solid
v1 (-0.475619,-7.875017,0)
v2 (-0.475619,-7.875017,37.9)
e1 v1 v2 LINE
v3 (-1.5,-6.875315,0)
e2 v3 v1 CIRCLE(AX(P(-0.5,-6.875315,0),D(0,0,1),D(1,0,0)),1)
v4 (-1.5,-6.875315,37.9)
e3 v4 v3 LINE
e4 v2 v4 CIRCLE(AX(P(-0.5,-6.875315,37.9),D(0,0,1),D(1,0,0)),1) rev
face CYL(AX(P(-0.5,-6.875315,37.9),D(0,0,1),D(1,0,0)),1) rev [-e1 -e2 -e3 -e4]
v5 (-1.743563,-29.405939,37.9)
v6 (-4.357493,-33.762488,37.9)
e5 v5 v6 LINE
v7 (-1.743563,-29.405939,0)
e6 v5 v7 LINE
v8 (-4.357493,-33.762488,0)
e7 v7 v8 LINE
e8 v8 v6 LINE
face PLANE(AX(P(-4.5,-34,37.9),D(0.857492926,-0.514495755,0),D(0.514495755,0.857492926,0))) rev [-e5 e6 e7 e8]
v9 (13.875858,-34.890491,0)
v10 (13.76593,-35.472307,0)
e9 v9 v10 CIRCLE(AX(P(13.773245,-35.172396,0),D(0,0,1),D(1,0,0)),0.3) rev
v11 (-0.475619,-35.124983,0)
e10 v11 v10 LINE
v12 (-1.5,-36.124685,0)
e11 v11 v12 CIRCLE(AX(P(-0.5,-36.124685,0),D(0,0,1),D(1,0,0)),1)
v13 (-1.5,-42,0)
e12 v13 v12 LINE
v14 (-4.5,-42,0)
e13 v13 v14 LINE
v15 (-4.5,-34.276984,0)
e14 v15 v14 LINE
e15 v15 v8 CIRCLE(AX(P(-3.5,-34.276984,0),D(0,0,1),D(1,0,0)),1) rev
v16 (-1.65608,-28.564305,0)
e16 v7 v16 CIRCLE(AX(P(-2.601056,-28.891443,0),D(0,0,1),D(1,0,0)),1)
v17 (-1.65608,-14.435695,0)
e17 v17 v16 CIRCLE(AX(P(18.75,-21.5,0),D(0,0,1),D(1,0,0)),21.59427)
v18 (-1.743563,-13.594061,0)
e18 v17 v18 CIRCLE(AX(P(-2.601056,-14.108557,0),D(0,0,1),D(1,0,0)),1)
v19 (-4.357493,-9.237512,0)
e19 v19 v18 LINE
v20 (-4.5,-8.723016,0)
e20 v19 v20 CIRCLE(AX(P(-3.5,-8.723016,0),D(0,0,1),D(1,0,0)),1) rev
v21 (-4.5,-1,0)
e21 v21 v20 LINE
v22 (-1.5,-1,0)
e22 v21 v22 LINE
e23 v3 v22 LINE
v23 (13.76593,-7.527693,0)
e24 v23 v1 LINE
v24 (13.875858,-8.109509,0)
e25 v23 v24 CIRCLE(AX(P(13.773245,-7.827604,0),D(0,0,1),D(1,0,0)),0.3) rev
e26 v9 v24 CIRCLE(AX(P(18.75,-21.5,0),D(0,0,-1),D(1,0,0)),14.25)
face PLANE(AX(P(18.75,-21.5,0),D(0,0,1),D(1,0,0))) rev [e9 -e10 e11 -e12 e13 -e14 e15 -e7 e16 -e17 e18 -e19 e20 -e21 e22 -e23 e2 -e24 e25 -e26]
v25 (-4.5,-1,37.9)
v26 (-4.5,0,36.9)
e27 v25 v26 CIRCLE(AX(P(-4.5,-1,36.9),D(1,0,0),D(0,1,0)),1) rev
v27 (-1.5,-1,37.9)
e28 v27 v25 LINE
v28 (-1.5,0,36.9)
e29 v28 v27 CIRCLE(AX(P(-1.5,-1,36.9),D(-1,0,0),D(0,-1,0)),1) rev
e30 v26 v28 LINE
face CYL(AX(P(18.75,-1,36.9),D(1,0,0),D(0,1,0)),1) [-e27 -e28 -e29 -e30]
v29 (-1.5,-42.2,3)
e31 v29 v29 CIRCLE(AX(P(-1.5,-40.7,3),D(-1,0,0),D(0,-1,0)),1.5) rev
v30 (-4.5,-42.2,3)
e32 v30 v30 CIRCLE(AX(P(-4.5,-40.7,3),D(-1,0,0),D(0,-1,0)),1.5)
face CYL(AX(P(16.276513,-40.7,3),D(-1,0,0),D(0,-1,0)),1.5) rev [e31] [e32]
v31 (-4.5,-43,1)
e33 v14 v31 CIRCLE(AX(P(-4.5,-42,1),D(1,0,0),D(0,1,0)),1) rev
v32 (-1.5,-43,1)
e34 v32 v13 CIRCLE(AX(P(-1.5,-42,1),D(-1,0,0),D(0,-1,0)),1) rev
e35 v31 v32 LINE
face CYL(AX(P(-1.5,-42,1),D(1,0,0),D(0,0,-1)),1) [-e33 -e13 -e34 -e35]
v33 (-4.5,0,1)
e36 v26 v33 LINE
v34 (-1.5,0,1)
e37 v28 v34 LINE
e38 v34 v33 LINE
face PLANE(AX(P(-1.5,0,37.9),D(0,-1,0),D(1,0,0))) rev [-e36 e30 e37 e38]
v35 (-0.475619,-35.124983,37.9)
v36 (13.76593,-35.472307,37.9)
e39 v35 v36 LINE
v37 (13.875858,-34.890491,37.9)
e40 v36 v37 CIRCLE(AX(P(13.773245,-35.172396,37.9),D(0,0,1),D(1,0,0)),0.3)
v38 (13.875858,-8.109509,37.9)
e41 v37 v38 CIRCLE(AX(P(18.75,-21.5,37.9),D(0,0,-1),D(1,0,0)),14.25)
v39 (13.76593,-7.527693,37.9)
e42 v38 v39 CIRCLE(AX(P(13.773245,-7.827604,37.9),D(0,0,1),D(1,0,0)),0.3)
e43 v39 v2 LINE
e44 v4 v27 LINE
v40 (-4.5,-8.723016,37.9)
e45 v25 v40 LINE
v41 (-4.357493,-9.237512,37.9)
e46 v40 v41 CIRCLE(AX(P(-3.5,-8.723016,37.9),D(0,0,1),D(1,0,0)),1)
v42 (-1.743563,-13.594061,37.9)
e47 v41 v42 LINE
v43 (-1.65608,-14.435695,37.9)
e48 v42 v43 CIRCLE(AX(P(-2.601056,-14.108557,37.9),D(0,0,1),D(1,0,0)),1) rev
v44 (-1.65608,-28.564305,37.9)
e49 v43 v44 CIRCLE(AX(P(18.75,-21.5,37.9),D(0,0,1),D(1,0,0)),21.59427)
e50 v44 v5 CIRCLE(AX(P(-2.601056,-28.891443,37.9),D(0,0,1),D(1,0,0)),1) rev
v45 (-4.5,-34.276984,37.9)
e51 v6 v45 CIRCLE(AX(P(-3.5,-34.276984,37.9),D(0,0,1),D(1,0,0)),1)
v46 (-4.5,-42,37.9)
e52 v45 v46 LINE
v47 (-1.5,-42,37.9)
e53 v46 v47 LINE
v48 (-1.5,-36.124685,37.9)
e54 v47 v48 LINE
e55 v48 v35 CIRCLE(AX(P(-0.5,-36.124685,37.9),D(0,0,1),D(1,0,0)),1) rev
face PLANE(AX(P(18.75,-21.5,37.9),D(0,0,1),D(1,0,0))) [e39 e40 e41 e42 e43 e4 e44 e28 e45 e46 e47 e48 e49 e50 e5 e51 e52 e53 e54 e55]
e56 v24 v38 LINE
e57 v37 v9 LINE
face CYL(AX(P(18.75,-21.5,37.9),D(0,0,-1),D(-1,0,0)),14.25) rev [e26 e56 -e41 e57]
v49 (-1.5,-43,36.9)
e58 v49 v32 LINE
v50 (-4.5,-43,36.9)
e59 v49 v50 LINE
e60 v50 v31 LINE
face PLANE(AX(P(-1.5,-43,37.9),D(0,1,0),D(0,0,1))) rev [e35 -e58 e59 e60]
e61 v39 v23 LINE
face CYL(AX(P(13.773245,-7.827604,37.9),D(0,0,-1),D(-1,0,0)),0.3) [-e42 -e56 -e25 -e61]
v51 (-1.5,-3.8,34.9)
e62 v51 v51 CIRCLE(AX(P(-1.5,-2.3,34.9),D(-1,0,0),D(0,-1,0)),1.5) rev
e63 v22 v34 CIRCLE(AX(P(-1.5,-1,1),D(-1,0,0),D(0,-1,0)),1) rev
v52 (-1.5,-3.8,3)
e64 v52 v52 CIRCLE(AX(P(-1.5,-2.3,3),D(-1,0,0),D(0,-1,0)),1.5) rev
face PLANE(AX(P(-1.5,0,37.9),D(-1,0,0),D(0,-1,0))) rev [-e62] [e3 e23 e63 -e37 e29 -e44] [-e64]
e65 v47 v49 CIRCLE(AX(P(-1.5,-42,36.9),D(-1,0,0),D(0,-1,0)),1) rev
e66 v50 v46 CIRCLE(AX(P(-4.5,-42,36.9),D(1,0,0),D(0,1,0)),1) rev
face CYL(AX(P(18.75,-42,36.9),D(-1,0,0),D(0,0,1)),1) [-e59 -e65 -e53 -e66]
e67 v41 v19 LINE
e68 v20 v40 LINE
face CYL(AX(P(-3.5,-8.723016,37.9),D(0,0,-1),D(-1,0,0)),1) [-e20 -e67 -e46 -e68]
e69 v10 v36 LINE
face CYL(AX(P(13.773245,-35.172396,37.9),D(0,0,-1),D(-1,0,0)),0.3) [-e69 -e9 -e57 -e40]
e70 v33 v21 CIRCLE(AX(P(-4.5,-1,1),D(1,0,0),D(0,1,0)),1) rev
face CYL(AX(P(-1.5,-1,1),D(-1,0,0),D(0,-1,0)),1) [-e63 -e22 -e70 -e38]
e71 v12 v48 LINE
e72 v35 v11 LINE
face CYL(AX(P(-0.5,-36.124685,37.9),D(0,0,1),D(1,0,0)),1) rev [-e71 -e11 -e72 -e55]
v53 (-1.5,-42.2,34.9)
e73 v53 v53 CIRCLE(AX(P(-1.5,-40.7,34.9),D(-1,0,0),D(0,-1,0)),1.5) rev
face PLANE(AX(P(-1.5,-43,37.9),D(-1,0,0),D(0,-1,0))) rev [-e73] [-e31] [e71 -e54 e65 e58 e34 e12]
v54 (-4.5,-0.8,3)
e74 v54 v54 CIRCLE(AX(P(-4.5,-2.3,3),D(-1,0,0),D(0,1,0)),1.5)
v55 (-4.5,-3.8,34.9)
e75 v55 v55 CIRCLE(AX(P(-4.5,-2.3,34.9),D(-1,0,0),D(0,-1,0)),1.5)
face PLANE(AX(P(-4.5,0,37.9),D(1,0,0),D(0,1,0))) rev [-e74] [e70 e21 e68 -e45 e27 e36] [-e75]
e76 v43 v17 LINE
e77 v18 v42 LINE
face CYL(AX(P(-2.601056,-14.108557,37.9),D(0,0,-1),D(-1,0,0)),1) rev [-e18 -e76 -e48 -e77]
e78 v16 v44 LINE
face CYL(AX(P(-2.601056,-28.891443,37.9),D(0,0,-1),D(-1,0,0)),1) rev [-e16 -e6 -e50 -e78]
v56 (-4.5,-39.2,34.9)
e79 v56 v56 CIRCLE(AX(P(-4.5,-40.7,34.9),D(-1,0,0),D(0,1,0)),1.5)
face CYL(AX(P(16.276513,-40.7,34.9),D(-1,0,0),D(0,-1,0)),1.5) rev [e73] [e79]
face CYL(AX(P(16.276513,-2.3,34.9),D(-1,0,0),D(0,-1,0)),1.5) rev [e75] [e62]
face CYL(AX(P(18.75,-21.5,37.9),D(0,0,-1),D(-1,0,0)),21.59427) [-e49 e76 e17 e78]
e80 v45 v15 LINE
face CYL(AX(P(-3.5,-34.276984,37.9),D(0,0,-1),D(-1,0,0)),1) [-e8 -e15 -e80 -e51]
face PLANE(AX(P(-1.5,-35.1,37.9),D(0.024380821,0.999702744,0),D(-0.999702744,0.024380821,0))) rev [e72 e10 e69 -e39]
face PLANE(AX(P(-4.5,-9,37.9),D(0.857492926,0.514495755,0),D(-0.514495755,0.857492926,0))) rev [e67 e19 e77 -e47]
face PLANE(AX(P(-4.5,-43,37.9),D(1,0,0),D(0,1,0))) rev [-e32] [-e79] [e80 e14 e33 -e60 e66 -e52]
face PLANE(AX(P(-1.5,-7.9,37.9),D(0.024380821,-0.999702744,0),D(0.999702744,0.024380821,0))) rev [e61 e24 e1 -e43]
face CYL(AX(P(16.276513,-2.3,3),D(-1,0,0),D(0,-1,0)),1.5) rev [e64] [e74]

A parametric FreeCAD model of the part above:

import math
import FreeCAD as App
import Part
import Sketcher

V = App.Vector
Q = App.Units.Quantity


def edges_at(feature, points):
    """Names of the edges that pass closest to the given points."""
    edges = feature.Shape.Edges
    near = lambda p: min(range(len(edges)), key=lambda i: edges[i].distToShape(Part.Vertex(*p))[0])
    return sorted({f"Edge{near(p) + 1}" for p in points})

doc = App.newDocument("Part")
params = doc.addObject("Spreadsheet::Sheet", "Params")
for row, (alias, value) in enumerate([
    ("sketch1_width", "3 mm"),
    ("sketch1_height", "9 mm"),
    ("sketch1_radius", "14.25 mm"),
    ("sketch1_height2", "7.9 mm"),
    ("pad1_length", "37.9 mm"),
    ("sketch2_diameter", "3 mm"),
    ("sketch3_diameter", "3 mm"),
    ("sketch4_diameter", "3 mm"),
    ("sketch5_diameter", "3 mm"),
    ("fillet_radius", "0.3 mm"),
    ("fillet2_radius", "1 mm"),
], start=1):
    params.set(f"A{row}", alias)
    params.set(f"B{row}", "=" + value)
    params.setAlias(f"B{row}", alias)

body = doc.addObject("PartDesign::Body", "Body")

# Sketch on XY plane
sketch1 = body.newObject("Sketcher::SketchObject", "Sketch")
sketch1.AttachmentSupport = (doc.getObject("XY_Plane"), [""])
sketch1.MapMode = "FlatFace"
sketch1.addGeometry(Part.LineSegment(V(-1.5, 0, 0), V(-4.5, 0, 0)), False)
sketch1.addGeometry(Part.LineSegment(V(-4.5, 0, 0), V(-4.5, -9, 0)), False)
sketch1.addGeometry(Part.LineSegment(V(-4.5, -9, 0), V(-1.5, -14, 0)), False)
sketch1.addGeometry(Part.ArcOfCircle(Part.Circle(V(18.8, -21.5, 0), V(0, 0, 1), 21.6), math.radians(160), math.radians(200)), False)
sketch1.addGeometry(Part.LineSegment(V(-1.5, -29, 0), V(-4.5, -34, 0)), False)
sketch1.addGeometry(Part.LineSegment(V(-4.5, -34, 0), V(-4.5, -43, 0)), False)
sketch1.addGeometry(Part.LineSegment(V(-4.5, -43, 0), V(-1.5, -43, 0)), False)
sketch1.addGeometry(Part.LineSegment(V(-1.5, -43, 0), V(-1.5, -35.1, 0)), False)
sketch1.addGeometry(Part.LineSegment(V(-1.5, -35.1, 0), V(16.3, -35.5, 0)), False)
sketch1.addGeometry(Part.ArcOfCircle(Part.Circle(V(18.8, -21.5, 0), V(0, 0, 1), 14.2), math.radians(100), math.radians(260)), False)
sketch1.addGeometry(Part.LineSegment(V(16.3, -7.5, 0), V(-1.5, -7.9, 0)), False)
sketch1.addGeometry(Part.LineSegment(V(-1.5, -7.9, 0), V(-1.5, 0, 0)), False)
sketch1.addConstraint(Sketcher.Constraint("Coincident", 0, 2, 1, 1))
sketch1.addConstraint(Sketcher.Constraint("Coincident", 1, 2, 2, 1))
sketch1.addConstraint(Sketcher.Constraint("Coincident", 2, 2, 3, 1))
sketch1.addConstraint(Sketcher.Constraint("Coincident", 3, 2, 4, 1))
sketch1.addConstraint(Sketcher.Constraint("Coincident", 4, 2, 5, 1))
sketch1.addConstraint(Sketcher.Constraint("Coincident", 5, 2, 6, 1))
sketch1.addConstraint(Sketcher.Constraint("Coincident", 6, 2, 7, 1))
sketch1.addConstraint(Sketcher.Constraint("Coincident", 7, 2, 8, 1))
sketch1.addConstraint(Sketcher.Constraint("Coincident", 8, 2, 9, 2))
sketch1.addConstraint(Sketcher.Constraint("Coincident", 9, 1, 10, 1))
sketch1.addConstraint(Sketcher.Constraint("Coincident", 10, 2, 11, 1))
sketch1.addConstraint(Sketcher.Constraint("Coincident", 11, 2, 0, 1))
sketch1.addConstraint(Sketcher.Constraint("Horizontal", 0))
sketch1.addConstraint(Sketcher.Constraint("Vertical", 1))
sketch1.addConstraint(Sketcher.Constraint("Vertical", 5))
sketch1.addConstraint(Sketcher.Constraint("Horizontal", 6))
sketch1.addConstraint(Sketcher.Constraint("Vertical", 7))
sketch1.addConstraint(Sketcher.Constraint("Vertical", 11))
sketch1.addConstraint(Sketcher.Constraint("Coincident", 9, 3, 3, 3))
sketch1.addConstraint(Sketcher.Constraint("PointOnObject", 0, 2, -1))
sketch1.addConstraint(Sketcher.Constraint("Vertical", 2, 2, 3, 2))
sketch1.addConstraint(Sketcher.Constraint("Vertical", 1, 2, 4, 2))
sketch1.addConstraint(Sketcher.Constraint("Vertical", 3, 2, 6, 2))
sketch1.addConstraint(Sketcher.Constraint("Vertical", 8, 2, 9, 1))
sketch1.addConstraint(Sketcher.Constraint("Vertical", 7, 2, 10, 2))
sketch1.addConstraint(Sketcher.Constraint("Equal", 1, 5))
sketch1.addConstraint(Sketcher.Constraint("Equal", 7, 11))
sketch1.addConstraint(Sketcher.Constraint("Equal", 2, 4))
sketch1.addConstraint(Sketcher.Constraint("DistanceX", 0, 2, 0, 1, Q("3 mm")))
sketch1.addConstraint(Sketcher.Constraint("DistanceY", 1, 2, 1, 1, Q("9 mm")))
sketch1.addConstraint(Sketcher.Constraint("Radius", 9, Q("14.25 mm")))
sketch1.addConstraint(Sketcher.Constraint("DistanceY", 7, 1, 7, 2, Q("7.9 mm")))
sketch1.addConstraint(Sketcher.Constraint("DistanceY", 2, 2, -1, 1, Q("14 mm")))
sketch1.addConstraint(Sketcher.Constraint("DistanceY", 3, 2, -1, 1, Q("29 mm")))
sketch1.addConstraint(Sketcher.Constraint("DistanceX", 0, 2, -1, 1, Q("4.5 mm")))
sketch1.addConstraint(Sketcher.Constraint("DistanceX", -1, 1, 3, 3, Q("18.75 mm")))
sketch1.addConstraint(Sketcher.Constraint("Distance", 8, Q("17.780799 mm")))
sketch1.setExpression("Constraints[28]", "Params.sketch1_width")
sketch1.setExpression("Constraints[29]", "Params.sketch1_height")
sketch1.setExpression("Constraints[30]", "Params.sketch1_radius")
sketch1.setExpression("Constraints[31]", "Params.sketch1_height2")
pad1 = body.newObject("PartDesign::Pad", "Pad")
pad1.Profile = sketch1
pad1.setExpression("Length", "Params.pad1_length")

# Sketch on YZ plane
sketch2 = body.newObject("Sketcher::SketchObject", "Sketch001")
sketch2.AttachmentSupport = (doc.getObject("YZ_Plane"), [""])
sketch2.MapMode = "FlatFace"
sketch2.AttachmentOffset = App.Placement(V(0, 0, -4.5), App.Rotation())
sketch2.addGeometry(Part.Circle(V(-40.7, 3, 0), V(0, 0, 1), 1.5), False)
sketch2.addConstraint(Sketcher.Constraint("Diameter", 0, Q("3 mm")))
sketch2.addConstraint(Sketcher.Constraint("DistanceY", -1, 1, 0, 3, Q("3 mm")))
sketch2.addConstraint(Sketcher.Constraint("DistanceX", 0, 3, -1, 1, Q("40.7 mm")))
sketch2.setExpression("Constraints[0]", "Params.sketch2_diameter")
pocket1 = body.newObject("PartDesign::Pocket", "Pocket")
pocket1.Profile = sketch2
pocket1.Type = "UpToFirst"
pocket1.Reversed = True

# Sketch on YZ plane
sketch3 = body.newObject("Sketcher::SketchObject", "Sketch002")
sketch3.AttachmentSupport = (doc.getObject("YZ_Plane"), [""])
sketch3.MapMode = "FlatFace"
sketch3.AttachmentOffset = App.Placement(V(0, 0, -4.5), App.Rotation())
sketch3.addGeometry(Part.Circle(V(-40.7, 34.9, 0), V(0, 0, 1), 1.5), False)
sketch3.addConstraint(Sketcher.Constraint("Diameter", 0, Q("3 mm")))
sketch3.addConstraint(Sketcher.Constraint("DistanceX", 0, 3, -1, 1, Q("40.7 mm")))
sketch3.addConstraint(Sketcher.Constraint("DistanceY", -1, 1, 0, 3, Q("34.9 mm")))
sketch3.setExpression("Constraints[0]", "Params.sketch3_diameter")
pocket2 = body.newObject("PartDesign::Pocket", "Pocket001")
pocket2.Profile = sketch3
pocket2.Type = "UpToFirst"
pocket2.Reversed = True

# Sketch on YZ plane
sketch4 = body.newObject("Sketcher::SketchObject", "Sketch003")
sketch4.AttachmentSupport = (doc.getObject("YZ_Plane"), [""])
sketch4.MapMode = "FlatFace"
sketch4.AttachmentOffset = App.Placement(V(0, 0, -4.5), App.Rotation())
sketch4.addGeometry(Part.Circle(V(-2.3, 3, 0), V(0, 0, 1), 1.5), False)
sketch4.addConstraint(Sketcher.Constraint("Diameter", 0, Q("3 mm")))
sketch4.addConstraint(Sketcher.Constraint("DistanceY", -1, 1, 0, 3, Q("3 mm")))
sketch4.addConstraint(Sketcher.Constraint("DistanceX", 0, 3, -1, 1, Q("2.3 mm")))
sketch4.setExpression("Constraints[0]", "Params.sketch4_diameter")
pocket3 = body.newObject("PartDesign::Pocket", "Pocket002")
pocket3.Profile = sketch4
pocket3.Type = "UpToFirst"
pocket3.Reversed = True

# Sketch on YZ plane
sketch5 = body.newObject("Sketcher::SketchObject", "Sketch004")
sketch5.AttachmentSupport = (doc.getObject("YZ_Plane"), [""])
sketch5.MapMode = "FlatFace"
sketch5.AttachmentOffset = App.Placement(V(0, 0, -4.5), App.Rotation())
sketch5.addGeometry(Part.Circle(V(-2.3, 34.9, 0), V(0, 0, 1), 1.5), False)
sketch5.addConstraint(Sketcher.Constraint("Diameter", 0, Q("3 mm")))
sketch5.addConstraint(Sketcher.Constraint("DistanceX", 0, 3, -1, 1, Q("2.3 mm")))
sketch5.addConstraint(Sketcher.Constraint("DistanceY", -1, 1, 0, 3, Q("34.9 mm")))
sketch5.setExpression("Constraints[0]", "Params.sketch5_diameter")
pocket4 = body.newObject("PartDesign::Pocket", "Pocket003")
pocket4.Profile = sketch5
pocket4.Type = "UpToFirst"
pocket4.Reversed = True
doc.recompute()

fillet = body.newObject("PartDesign::Fillet", "Fillet")
fillet.Base = (pocket4, edges_at(pocket4, [(16.276, -35.534, 18.95), (16.276, -7.466, 18.95)]))
fillet.setExpression("Radius", "Params.fillet_radius")
doc.recompute()

fillet2 = body.newObject("PartDesign::Fillet", "Fillet001")
fillet2.Base = (fillet, edges_at(fillet, [
    (-3, -43, 0),
    (-3, 0, 0),
    (-3, 0, 37.9),
    (-1.5, -35.1, 18.95),
    (-4.5, -34, 18.95),
    (-1.5, -29, 18.95),
    (-1.5, -14, 18.95),
    (-4.5, -9, 18.95),
    (-1.5, -7.9, 18.95),
    (-3, -43, 37.9),
]))
fillet2.setExpression("Radius", "Params.fillet2_radius")

doc.recompute()
